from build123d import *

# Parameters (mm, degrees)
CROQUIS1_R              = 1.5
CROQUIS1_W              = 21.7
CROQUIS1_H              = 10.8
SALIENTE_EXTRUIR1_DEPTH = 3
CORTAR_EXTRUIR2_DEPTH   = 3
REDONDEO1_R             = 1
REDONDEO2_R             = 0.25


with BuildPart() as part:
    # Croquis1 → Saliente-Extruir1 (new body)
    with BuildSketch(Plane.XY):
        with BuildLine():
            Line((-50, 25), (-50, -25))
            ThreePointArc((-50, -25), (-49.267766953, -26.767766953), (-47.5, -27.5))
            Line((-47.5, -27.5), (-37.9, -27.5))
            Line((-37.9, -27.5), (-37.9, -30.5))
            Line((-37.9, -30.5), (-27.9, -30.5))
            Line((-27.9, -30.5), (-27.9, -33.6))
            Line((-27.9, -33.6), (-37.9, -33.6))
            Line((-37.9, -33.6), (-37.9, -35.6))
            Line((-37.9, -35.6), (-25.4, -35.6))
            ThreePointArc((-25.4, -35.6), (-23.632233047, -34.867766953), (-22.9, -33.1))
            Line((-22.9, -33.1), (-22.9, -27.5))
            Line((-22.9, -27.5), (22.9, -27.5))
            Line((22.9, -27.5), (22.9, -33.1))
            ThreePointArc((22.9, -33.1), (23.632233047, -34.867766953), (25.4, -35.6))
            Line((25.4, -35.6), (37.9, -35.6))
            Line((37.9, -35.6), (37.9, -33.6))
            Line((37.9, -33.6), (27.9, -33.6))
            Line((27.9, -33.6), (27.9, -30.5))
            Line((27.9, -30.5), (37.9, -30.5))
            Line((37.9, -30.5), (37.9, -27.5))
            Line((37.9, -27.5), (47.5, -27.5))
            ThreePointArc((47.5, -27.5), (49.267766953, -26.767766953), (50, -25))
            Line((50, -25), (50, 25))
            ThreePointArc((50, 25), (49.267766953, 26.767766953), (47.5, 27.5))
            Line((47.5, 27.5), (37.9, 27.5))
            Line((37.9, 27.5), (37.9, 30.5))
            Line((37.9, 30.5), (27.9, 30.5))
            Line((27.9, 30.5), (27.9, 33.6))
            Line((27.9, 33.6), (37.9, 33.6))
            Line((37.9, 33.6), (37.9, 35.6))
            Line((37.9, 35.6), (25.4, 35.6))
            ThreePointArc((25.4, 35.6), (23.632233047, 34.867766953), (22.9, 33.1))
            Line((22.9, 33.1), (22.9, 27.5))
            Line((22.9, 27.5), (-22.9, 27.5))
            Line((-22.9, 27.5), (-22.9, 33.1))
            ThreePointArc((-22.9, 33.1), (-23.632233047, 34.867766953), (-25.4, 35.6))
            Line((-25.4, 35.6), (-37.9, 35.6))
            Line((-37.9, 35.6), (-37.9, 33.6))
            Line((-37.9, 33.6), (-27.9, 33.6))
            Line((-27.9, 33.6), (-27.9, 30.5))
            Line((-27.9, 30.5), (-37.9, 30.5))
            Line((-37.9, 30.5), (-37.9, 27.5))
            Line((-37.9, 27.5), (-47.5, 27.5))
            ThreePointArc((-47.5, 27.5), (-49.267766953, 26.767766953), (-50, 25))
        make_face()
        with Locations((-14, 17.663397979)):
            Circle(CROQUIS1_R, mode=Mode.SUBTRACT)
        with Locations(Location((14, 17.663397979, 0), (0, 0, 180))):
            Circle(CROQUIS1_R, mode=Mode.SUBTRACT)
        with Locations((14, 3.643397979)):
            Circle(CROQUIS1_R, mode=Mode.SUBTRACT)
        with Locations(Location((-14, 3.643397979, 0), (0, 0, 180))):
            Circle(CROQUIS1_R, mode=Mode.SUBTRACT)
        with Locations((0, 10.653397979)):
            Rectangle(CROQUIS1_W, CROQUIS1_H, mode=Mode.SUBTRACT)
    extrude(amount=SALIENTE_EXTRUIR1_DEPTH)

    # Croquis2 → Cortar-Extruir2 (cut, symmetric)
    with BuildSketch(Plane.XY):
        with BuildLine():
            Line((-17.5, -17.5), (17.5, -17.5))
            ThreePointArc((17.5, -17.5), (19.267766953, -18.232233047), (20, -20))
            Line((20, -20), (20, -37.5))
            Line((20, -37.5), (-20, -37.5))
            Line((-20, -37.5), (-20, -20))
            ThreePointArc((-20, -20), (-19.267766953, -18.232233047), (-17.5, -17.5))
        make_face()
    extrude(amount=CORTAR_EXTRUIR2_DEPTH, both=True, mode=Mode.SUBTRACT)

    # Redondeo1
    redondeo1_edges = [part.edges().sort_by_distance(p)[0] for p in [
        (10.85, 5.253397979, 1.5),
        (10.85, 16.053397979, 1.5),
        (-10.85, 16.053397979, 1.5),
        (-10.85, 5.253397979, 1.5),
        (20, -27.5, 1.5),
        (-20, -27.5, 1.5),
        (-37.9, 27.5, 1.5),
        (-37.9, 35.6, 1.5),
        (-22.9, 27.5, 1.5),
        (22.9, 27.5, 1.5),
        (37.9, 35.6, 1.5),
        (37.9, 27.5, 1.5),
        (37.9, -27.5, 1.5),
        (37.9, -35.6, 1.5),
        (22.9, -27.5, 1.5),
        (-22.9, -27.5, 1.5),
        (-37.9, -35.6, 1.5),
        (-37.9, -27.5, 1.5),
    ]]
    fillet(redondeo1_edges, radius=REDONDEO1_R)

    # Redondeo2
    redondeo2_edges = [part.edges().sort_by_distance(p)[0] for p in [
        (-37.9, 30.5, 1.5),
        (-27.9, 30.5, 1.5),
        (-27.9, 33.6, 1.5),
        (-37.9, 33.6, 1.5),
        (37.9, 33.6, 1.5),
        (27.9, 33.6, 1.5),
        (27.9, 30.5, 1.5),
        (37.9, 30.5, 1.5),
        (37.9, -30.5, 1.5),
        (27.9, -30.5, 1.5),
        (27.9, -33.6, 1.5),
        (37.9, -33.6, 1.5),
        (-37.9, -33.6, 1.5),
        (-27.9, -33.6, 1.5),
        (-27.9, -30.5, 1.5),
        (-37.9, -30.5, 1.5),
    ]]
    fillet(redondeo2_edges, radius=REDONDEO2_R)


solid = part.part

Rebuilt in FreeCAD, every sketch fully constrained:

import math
import FreeCAD as App
import Part
import Sketcher
from FreeCAD import Vector
Q = App.Units.Quantity


def edges_at(feature, points):
    """Names of the edges that pass closest to the given points."""
    edges = feature.Shape.Edges
    near = lambda p: min(range(len(edges)), key=lambda i: edges[i].distToShape(Part.Vertex(*p))[0])
    return sorted({f"Edge{near(p) + 1}" for p in points})

doc = App.newDocument("Part")
params = doc.addObject("Spreadsheet::Sheet", "Params")
for row, (alias, value) in enumerate([
    ("sketch1_diameter", "3 mm"),
    ("sketch1_radius", "2.5 mm"),
    ("sketch1_width", "10 mm"),
    ("sketch1_height", "50 mm"),
    ("sketch1_height2", "3 mm"),
    ("pad1_length", "3 mm"),
    ("sketch2_radius", "2.5 mm"),
    ("sketch2_width", "35 mm"),
    ("sketch2_height", "17.5 mm"),
    ("pocket1_length", "6 mm"),
    ("fillet_radius", "1 mm"),
    ("fillet2_radius", "0.25 mm"),
], start=1):
    params.set(f"A{row}", alias)
    params.set(f"B{row}", "=" + value)
    params.setAlias(f"B{row}", alias)

body = doc.addObject("PartDesign::Body", "Body")

sketch1 = body.newObject("Sketcher::SketchObject", "Sketch")
sketch1.AttachmentSupport = (doc.getObject("XY_Plane"), [""])
sketch1.MapMode = "FlatFace"
sketch1.addGeometry([
    Part.LineSegment(Vector(-50, 25, 0), Vector(-50, -25, 0)),
    Part.ArcOfCircle(Part.Circle(Vector(-47.5, -25, 0), Vector(0, 0, 1), 2.5), math.radians(180), math.radians(270)),
    Part.LineSegment(Vector(-47.5, -27.5, 0), Vector(-37.9, -27.5, 0)),
    Part.LineSegment(Vector(-37.9, -27.5, 0), Vector(-37.9, -30.5, 0)),
    Part.LineSegment(Vector(-37.9, -30.5, 0), Vector(-27.9, -30.5, 0)),
    Part.LineSegment(Vector(-27.9, -30.5, 0), Vector(-27.9, -33.6, 0)),
    Part.LineSegment(Vector(-27.9, -33.6, 0), Vector(-37.9, -33.6, 0)),
    Part.LineSegment(Vector(-37.9, -33.6, 0), Vector(-37.9, -35.6, 0)),
    Part.LineSegment(Vector(-37.9, -35.6, 0), Vector(-25.4, -35.6, 0)),
    Part.ArcOfCircle(Part.Circle(Vector(-25.4, -33.1, 0), Vector(0, 0, 1), 2.5), math.radians(-90), math.radians(0)),
    Part.LineSegment(Vector(-22.9, -33.1, 0), Vector(-22.9, -27.5, 0)),
    Part.LineSegment(Vector(-22.9, -27.5, 0), Vector(22.9, -27.5, 0)),
    Part.LineSegment(Vector(22.9, -27.5, 0), Vector(22.9, -33.1, 0)),
    Part.ArcOfCircle(Part.Circle(Vector(25.4, -33.1, 0), Vector(0, 0, 1), 2.5), math.radians(180), math.radians(270)),
    Part.LineSegment(Vector(25.4, -35.6, 0), Vector(37.9, -35.6, 0)),
    Part.LineSegment(Vector(37.9, -35.6, 0), Vector(37.9, -33.6, 0)),
    Part.LineSegment(Vector(37.9, -33.6, 0), Vector(27.9, -33.6, 0)),
    Part.LineSegment(Vector(27.9, -33.6, 0), Vector(27.9, -30.5, 0)),
    Part.LineSegment(Vector(27.9, -30.5, 0), Vector(37.9, -30.5, 0)),
    Part.LineSegment(Vector(37.9, -30.5, 0), Vector(37.9, -27.5, 0)),
    Part.LineSegment(Vector(37.9, -27.5, 0), Vector(47.5, -27.5, 0)),
    Part.ArcOfCircle(Part.Circle(Vector(47.5, -25, 0), Vector(0, 0, 1), 2.5), math.radians(-90), math.radians(0)),
    Part.LineSegment(Vector(50, -25, 0), Vector(50, 25, 0)),
    Part.ArcOfCircle(Part.Circle(Vector(47.5, 25, 0), Vector(0, 0, 1), 2.5), math.radians(0), math.radians(90)),
    Part.LineSegment(Vector(47.5, 27.5, 0), Vector(37.9, 27.5, 0)),
    Part.LineSegment(Vector(37.9, 27.5, 0), Vector(37.9, 30.5, 0)),
    Part.LineSegment(Vector(37.9, 30.5, 0), Vector(27.9, 30.5, 0)),
    Part.LineSegment(Vector(27.9, 30.5, 0), Vector(27.9, 33.6, 0)),
    Part.LineSegment(Vector(27.9, 33.6, 0), Vector(37.9, 33.6, 0)),
    Part.LineSegment(Vector(37.9, 33.6, 0), Vector(37.9, 35.6, 0)),
    Part.LineSegment(Vector(37.9, 35.6, 0), Vector(25.4, 35.6, 0)),
    Part.ArcOfCircle(Part.Circle(Vector(25.4, 33.1, 0), Vector(0, 0, 1), 2.5), math.radians(90), math.radians(180)),
    Part.LineSegment(Vector(22.9, 33.1, 0), Vector(22.9, 27.5, 0)),
    Part.LineSegment(Vector(22.9, 27.5, 0), Vector(-22.9, 27.5, 0)),
    Part.LineSegment(Vector(-22.9, 27.5, 0), Vector(-22.9, 33.1, 0)),
    Part.ArcOfCircle(Part.Circle(Vector(-25.4, 33.1, 0), Vector(0, 0, 1), 2.5), math.radians(0), math.radians(90)),
    Part.LineSegment(Vector(-25.4, 35.6, 0), Vector(-37.9, 35.6, 0)),
    Part.LineSegment(Vector(-37.9, 35.6, 0), Vector(-37.9, 33.6, 0)),
    Part.LineSegment(Vector(-37.9, 33.6, 0), Vector(-27.9, 33.6, 0)),
    Part.LineSegment(Vector(-27.9, 33.6, 0), Vector(-27.9, 30.5, 0)),
    Part.LineSegment(Vector(-27.9, 30.5, 0), Vector(-37.9, 30.5, 0)),
    Part.LineSegment(Vector(-37.9, 30.5, 0), Vector(-37.9, 27.5, 0)),
    Part.LineSegment(Vector(-37.9, 27.5, 0), Vector(-47.5, 27.5, 0)),
    Part.ArcOfCircle(Part.Circle(Vector(-47.5, 25, 0), Vector(0, 0, 1), 2.5), math.radians(90), math.radians(180)),
    Part.Circle(Vector(-14, 3.6, 0), Vector(0, 0, 1), 1.5),
    Part.Circle(Vector(14, 3.6, 0), Vector(0, 0, 1), 1.5),
    Part.LineSegment(Vector(10.8, 5.3, 0), Vector(-10.8, 5.3, 0)),
    Part.LineSegment(Vector(-10.8, 5.3, 0), Vector(-10.8, 16.1, 0)),
    Part.LineSegment(Vector(-10.8, 16.1, 0), Vector(10.8, 16.1, 0)),
    Part.LineSegment(Vector(10.8, 16.1, 0), Vector(10.8, 5.3, 0)),
    Part.Circle(Vector(-14, 17.7, 0), Vector(0, 0, 1), 1.5),
    Part.Circle(Vector(14, 17.7, 0), Vector(0, 0, 1), 1.5),
], False)
sketch1.addConstraint([
    Sketcher.Constraint("Tangent", 0, 2, 1, 1),
    Sketcher.Constraint("Tangent", 1, 2, 2, 1),
    Sketcher.Constraint("Coincident", 2, 2, 3, 1),
    Sketcher.Constraint("Coincident", 3, 2, 4, 1),
    Sketcher.Constraint("Coincident", 4, 2, 5, 1),
    Sketcher.Constraint("Coincident", 5, 2, 6, 1),
    Sketcher.Constraint("Coincident", 6, 2, 7, 1),
    Sketcher.Constraint("Coincident", 7, 2, 8, 1),
    Sketcher.Constraint("Tangent", 8, 2, 9, 1),
    Sketcher.Constraint("Tangent", 9, 2, 10, 1),
    Sketcher.Constraint("Coincident", 10, 2, 11, 1),
    Sketcher.Constraint("Coincident", 11, 2, 12, 1),
    Sketcher.Constraint("Tangent", 12, 2, 13, 1),
    Sketcher.Constraint("Tangent", 13, 2, 14, 1),
    Sketcher.Constraint("Coincident", 14, 2, 15, 1),
    Sketcher.Constraint("Coincident", 15, 2, 16, 1),
    Sketcher.Constraint("Coincident", 16, 2, 17, 1),
    Sketcher.Constraint("Coincident", 17, 2, 18, 1),
    Sketcher.Constraint("Coincident", 18, 2, 19, 1),
    Sketcher.Constraint("Coincident", 19, 2, 20, 1),
    Sketcher.Constraint("Tangent", 20, 2, 21, 1),
    Sketcher.Constraint("Tangent", 21, 2, 22, 1),
    Sketcher.Constraint("Tangent", 22, 2, 23, 1),
    Sketcher.Constraint("Tangent", 23, 2, 24, 1),
    Sketcher.Constraint("Coincident", 24, 2, 25, 1),
    Sketcher.Constraint("Coincident", 25, 2, 26, 1),
    Sketcher.Constraint("Coincident", 26, 2, 27, 1),
    Sketcher.Constraint("Coincident", 27, 2, 28, 1),
    Sketcher.Constraint("Coincident", 28, 2, 29, 1),
    Sketcher.Constraint("Coincident", 29, 2, 30, 1),
    Sketcher.Constraint("Tangent", 30, 2, 31, 1),
    Sketcher.Constraint("Tangent", 31, 2, 32, 1),
    Sketcher.Constraint("Coincident", 32, 2, 33, 1),
    Sketcher.Constraint("Coincident", 33, 2, 34, 1),
    Sketcher.Constraint("Tangent", 34, 2, 35, 1),
    Sketcher.Constraint("Tangent", 35, 2, 36, 1),
    Sketcher.Constraint("Coincident", 36, 2, 37, 1),
    Sketcher.Constraint("Coincident", 37, 2, 38, 1),
    Sketcher.Constraint("Coincident", 38, 2, 39, 1),
    Sketcher.Constraint("Coincident", 39, 2, 40, 1),
    Sketcher.Constraint("Coincident", 40, 2, 41, 1),
    Sketcher.Constraint("Coincident", 41, 2, 42, 1),
    Sketcher.Constraint("Tangent", 42, 2, 43, 1),
    Sketcher.Constraint("Tangent", 43, 2, 0, 1),
    Sketcher.Constraint("Coincident", 46, 2, 47, 1),
    Sketcher.Constraint("Coincident", 47, 2, 48, 1),
    Sketcher.Constraint("Coincident", 48, 2, 49, 1),
    Sketcher.Constraint("Coincident", 49, 2, 46, 1),
    Sketcher.Constraint("Vertical", 0),
    Sketcher.Constraint("Horizontal", 2),
    Sketcher.Constraint("Vertical", 3),
    Sketcher.Constraint("Horizontal", 4),
    Sketcher.Constraint("Vertical", 5),
    Sketcher.Constraint("Horizontal", 6),
    Sketcher.Constraint("Vertical", 7),
    Sketcher.Constraint("Horizontal", 8),
    Sketcher.Constraint("Vertical", 10),
    Sketcher.Constraint("Horizontal", 11),
    Sketcher.Constraint("Vertical", 12),
    Sketcher.Constraint("Horizontal", 14),
    Sketcher.Constraint("Vertical", 15),
    Sketcher.Constraint("Horizontal", 16),
    Sketcher.Constraint("Vertical", 17),
    Sketcher.Constraint("Horizontal", 18),
    Sketcher.Constraint("Vertical", 19),
    Sketcher.Constraint("Horizontal", 20),
    Sketcher.Constraint("Vertical", 22),
    Sketcher.Constraint("Horizontal", 24),
    Sketcher.Constraint("Vertical", 25),
    Sketcher.Constraint("Horizontal", 26),
    Sketcher.Constraint("Vertical", 27),
    Sketcher.Constraint("Horizontal", 28),
    Sketcher.Constraint("Vertical", 29),
    Sketcher.Constraint("Horizontal", 30),
    Sketcher.Constraint("Vertical", 32),
    Sketcher.Constraint("Horizontal", 33),
    Sketcher.Constraint("Vertical", 34),
    Sketcher.Constraint("Horizontal", 36),
    Sketcher.Constraint("Vertical", 37),
    Sketcher.Constraint("Horizontal", 38),
    Sketcher.Constraint("Vertical", 39),
    Sketcher.Constraint("Horizontal", 40),
    Sketcher.Constraint("Vertical", 41),
    Sketcher.Constraint("Horizontal", 42),
    Sketcher.Constraint("Horizontal", 46),
    Sketcher.Constraint("Vertical", 47),
    Sketcher.Constraint("Horizontal", 48),
    Sketcher.Constraint("Vertical", 49),
    Sketcher.Constraint("Equal", 1, 9),
    Sketcher.Constraint("Equal", 9, 13),
    Sketcher.Constraint("Equal", 13, 21),
    Sketcher.Constraint("Equal", 21, 23),
    Sketcher.Constraint("Equal", 23, 31),
    Sketcher.Constraint("Equal", 31, 35),
    Sketcher.Constraint("Equal", 35, 43),
    Sketcher.Constraint("Equal", 44, 45),
    Sketcher.Constraint("Equal", 45, 50),
    Sketcher.Constraint("Equal", 50, 51),
    Sketcher.Constraint("Symmetric", 1, 3, 23, 3, -1, 1),
    Sketcher.Constraint("Symmetric", 9, 3, 31, 3, -1, 1),
    Sketcher.Constraint("Symmetric", 13, 3, 35, 3, -1, 1),
    Sketcher.Constraint("Symmetric", 3, 2, 25, 2, -1, 1),
    Sketcher.Constraint("Symmetric", 5, 2, 27, 2, -1, 1),
    Sketcher.Constraint("Symmetric", 15, 2, 37, 2, -1, 1),
    Sketcher.Constraint("Symmetric", 17, 2, 39, 2, -1, 1),
    Sketcher.Constraint("Symmetric", 19, 2, 41, 2, -1, 1),
    Sketcher.Constraint("Symmetric", 9, 3, 13, 3, -2),
    Sketcher.Constraint("Symmetric", 44, 3, 45, 3, -2),
    Sketcher.Constraint("Symmetric", 50, 3, 51, 3, -2),
    Sketcher.Constraint("Symmetric", 6, 2, 15, 2, -2),
    Sketcher.Constraint("Symmetric", 4, 2, 17, 2, -2),
    Sketcher.Constraint("Symmetric", 2, 2, 19, 2, -2),
    Sketcher.Constraint("Horizontal", 2, 2, 10, 2),
    Sketcher.Constraint("Horizontal", 24, 2, 32, 2),
    Sketcher.Constraint("Vertical", 44, 3, 50, 3),
    Sketcher.Constraint("Vertical", 3, 2, 6, 2),
    Sketcher.Constraint("Vertical", 25, 2, 28, 2),
    Sketcher.Constraint("Diameter", 44, Q("3 mm")),
    Sketcher.Constraint("Radius", 1, Q("2.5 mm")),
    Sketcher.Constraint("DistanceX", 4, 1, 4, 2, Q("10 mm")),
    Sketcher.Constraint("DistanceY", 0, 2, 0, 1, Q("50 mm")),
    Sketcher.Constraint("DistanceY", 3, 2, 3, 1, Q("3 mm")),
    Sketcher.Constraint("DistanceY", 7, 2, 7, 1, Q("2 mm")),
    Sketcher.Constraint("DistanceX", 2, 1, 2, 2, Q("9.6 mm")),
    Sketcher.Constraint("DistanceX", 8, 1, 8, 2, Q("12.5 mm")),
    Sketcher.Constraint("DistanceX", 11, 1, 11, 2, Q("45.8 mm")),
    Sketcher.Constraint("DistanceX", 46, 2, 46, 1, Q("21.7 mm")),
    Sketcher.Constraint("DistanceY", 5, 2, 5, 1, Q("3.1 mm")),
    Sketcher.Constraint("DistanceY", 47, 1, 47, 2, Q("10.8 mm")),
    Sketcher.Constraint("DistanceX", 44, 3, -1, 1, Q("14 mm")),
    Sketcher.Constraint("DistanceX", 46, 2, -1, 1, Q("10.85 mm")),
    Sketcher.Constraint("DistanceY", 44, 3, 50, 3, Q("14.02 mm")),
    Sketcher.Constraint("DistanceY", 44, 3, 46, 2, Q("1.61 mm")),
    Sketcher.Constraint("DistanceY", -1, 1, 44, 3, Q("3.643398 mm")),
])
sketch1.setExpression("Constraints[117]", "Params.sketch1_diameter")
sketch1.setExpression("Constraints[118]", "Params.sketch1_radius")
sketch1.setExpression("Constraints[119]", "Params.sketch1_width")
sketch1.setExpression("Constraints[120]", "Params.sketch1_height")
sketch1.setExpression("Constraints[121]", "Params.sketch1_height2")
pad1 = body.newObject("PartDesign::Pad", "Pad")
pad1.Profile = sketch1
pad1.setExpression("Length", "Params.pad1_length")

sketch2 = body.newObject("Sketcher::SketchObject", "Sketch001")
sketch2.AttachmentSupport = (doc.getObject("XY_Plane"), [""])
sketch2.MapMode = "FlatFace"
sketch2.addGeometry([
    Part.LineSegment(Vector(17.5, -17.5, 0), Vector(-17.5, -17.5, 0)),
    Part.ArcOfCircle(Part.Circle(Vector(-17.5, -20, 0), Vector(0, 0, 1), 2.5), math.radians(90), math.radians(180)),
    Part.LineSegment(Vector(-20, -20, 0), Vector(-20, -37.5, 0)),
    Part.LineSegment(Vector(-20, -37.5, 0), Vector(20, -37.5, 0)),
    Part.LineSegment(Vector(20, -37.5, 0), Vector(20, -20, 0)),
    Part.ArcOfCircle(Part.Circle(Vector(17.5, -20, 0), Vector(0, 0, 1), 2.5), math.radians(0), math.radians(90)),
], False)
sketch2.addConstraint([
    Sketcher.Constraint("Tangent", 0, 2, 1, 1),
    Sketcher.Constraint("Tangent", 1, 2, 2, 1),
    Sketcher.Constraint("Coincident", 2, 2, 3, 1),
    Sketcher.Constraint("Coincident", 3, 2, 4, 1),
    Sketcher.Constraint("Tangent", 4, 2, 5, 1),
    Sketcher.Constraint("Tangent", 5, 2, 0, 1),
    Sketcher.Constraint("Horizontal", 0),
    Sketcher.Constraint("Vertical", 2),
    Sketcher.Constraint("Horizontal", 3),
    Sketcher.Constraint("Vertical", 4),
    Sketcher.Constraint("Equal", 1, 5),
    Sketcher.Constraint("Radius", 1, Q("2.5 mm")),
    Sketcher.Constraint("DistanceX", 0, 2, 0, 1, Q("35 mm")),
    Sketcher.Constraint("DistanceY", 2, 2, 2, 1, Q("17.5 mm")),
    Sketcher.Constraint("DistanceY", 1, 3, -1, 1, Q("20 mm")),
    Sketcher.Constraint("DistanceX", 1, 2, -1, 1, Q("20 mm")),
])
sketch2.setExpression("Constraints[11]", "Params.sketch2_radius")
sketch2.setExpression("Constraints[12]", "Params.sketch2_width")
sketch2.setExpression("Constraints[13]", "Params.sketch2_height")
pocket1 = body.newObject("PartDesign::Pocket", "Pocket")
pocket1.Profile = sketch2
pocket1.setExpression("Length", "Params.pocket1_length")
pocket1.Midplane = True
doc.recompute()

fillet = body.newObject("PartDesign::Fillet", "Fillet")
fillet.Base = (pocket1, edges_at(pocket1, [
    (10.85, 5.253, 1.5),
    (10.85, 16.053, 1.5),
    (-10.85, 16.053, 1.5),
    (-10.85, 5.253, 1.5),
    (20, -27.5, 1.5),
    (-20, -27.5, 1.5),
    (-37.9, 27.5, 1.5),
    (-37.9, 35.6, 1.5),
    (-22.9, 27.5, 1.5),
    (22.9, 27.5, 1.5),
    (37.9, 35.6, 1.5),
    (37.9, 27.5, 1.5),
    (37.9, -27.5, 1.5),
    (37.9, -35.6, 1.5),
    (22.9, -27.5, 1.5),
    (-22.9, -27.5, 1.5),
    (-37.9, -35.6, 1.5),
    (-37.9, -27.5, 1.5),
]))
fillet.setExpression("Radius", "Params.fillet_radius")
doc.recompute()

fillet2 = body.newObject("PartDesign::Fillet", "Fillet001")
fillet2.Base = (fillet, edges_at(fillet, [
    (-37.9, 30.5, 1.5),
    (-27.9, 30.5, 1.5),
    (-27.9, 33.6, 1.5),
    (-37.9, 33.6, 1.5),
    (37.9, 33.6, 1.5),
    (27.9, 33.6, 1.5),
    (27.9, 30.5, 1.5),
    (37.9, 30.5, 1.5),
    (37.9, -30.5, 1.5),
    (27.9, -30.5, 1.5),
    (27.9, -33.6, 1.5),
    (37.9, -33.6, 1.5),
    (-37.9, -33.6, 1.5),
    (-27.9, -33.6, 1.5),
    (-27.9, -30.5, 1.5),
    (-37.9, -30.5, 1.5),
]))
fillet2.setExpression("Radius", "Params.fillet2_radius")

doc.recompute()
